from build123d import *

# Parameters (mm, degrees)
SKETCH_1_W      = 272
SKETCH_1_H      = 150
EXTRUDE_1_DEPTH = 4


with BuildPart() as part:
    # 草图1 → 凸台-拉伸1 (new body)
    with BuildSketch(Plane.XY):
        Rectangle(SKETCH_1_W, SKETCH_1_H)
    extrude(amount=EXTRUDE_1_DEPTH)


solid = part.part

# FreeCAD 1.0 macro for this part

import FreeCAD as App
import Part
import Sketcher


def add_polygon(sketch, points):
    """Adds a closed chain of lines whose ends are joined by coincident constraints."""
    first, n = sketch.GeometryCount, len(points)
    for a, b in zip(points, points[1:] + points[:1]):
        sketch.addGeometry(Part.LineSegment(App.Vector(*a, 0), App.Vector(*b, 0)), False)
    for i in range(n):
        sketch.addConstraint(Sketcher.Constraint("Coincident", first + i, 2, first + (i + 1) % n, 1))

doc = App.newDocument("Part")
body = doc.addObject("PartDesign::Body", "Body")

# Sketch on XY plane
sketch1 = body.newObject("Sketcher::SketchObject", "Sketch")
sketch1.AttachmentSupport = (doc.getObject("XY_Plane"), [""])
sketch1.MapMode = "FlatFace"
add_polygon(sketch1, [(-136, 75), (-136, -75), (136, -75), (136, 75)])  # lines 0-3
sketch1.addConstraint(Sketcher.Constraint("Vertical", 0))
sketch1.addConstraint(Sketcher.Constraint("Horizontal", 1))
sketch1.addConstraint(Sketcher.Constraint("Vertical", 2))
sketch1.addConstraint(Sketcher.Constraint("Horizontal", 3))
sketch1.addConstraint(Sketcher.Constraint("Symmetric", 0, 2, 2, 2, -1, 1))
sketch1.addConstraint(Sketcher.Constraint("DistanceX", 1, 1, 1, 2, 272.0))
sketch1.addConstraint(Sketcher.Constraint("DistanceY", 0, 2, 0, 1, 150.0))
pad1 = body.newObject("PartDesign::Pad", "Pad")
pad1.Profile = sketch1
pad1.Length = 4

doc.recompute()
